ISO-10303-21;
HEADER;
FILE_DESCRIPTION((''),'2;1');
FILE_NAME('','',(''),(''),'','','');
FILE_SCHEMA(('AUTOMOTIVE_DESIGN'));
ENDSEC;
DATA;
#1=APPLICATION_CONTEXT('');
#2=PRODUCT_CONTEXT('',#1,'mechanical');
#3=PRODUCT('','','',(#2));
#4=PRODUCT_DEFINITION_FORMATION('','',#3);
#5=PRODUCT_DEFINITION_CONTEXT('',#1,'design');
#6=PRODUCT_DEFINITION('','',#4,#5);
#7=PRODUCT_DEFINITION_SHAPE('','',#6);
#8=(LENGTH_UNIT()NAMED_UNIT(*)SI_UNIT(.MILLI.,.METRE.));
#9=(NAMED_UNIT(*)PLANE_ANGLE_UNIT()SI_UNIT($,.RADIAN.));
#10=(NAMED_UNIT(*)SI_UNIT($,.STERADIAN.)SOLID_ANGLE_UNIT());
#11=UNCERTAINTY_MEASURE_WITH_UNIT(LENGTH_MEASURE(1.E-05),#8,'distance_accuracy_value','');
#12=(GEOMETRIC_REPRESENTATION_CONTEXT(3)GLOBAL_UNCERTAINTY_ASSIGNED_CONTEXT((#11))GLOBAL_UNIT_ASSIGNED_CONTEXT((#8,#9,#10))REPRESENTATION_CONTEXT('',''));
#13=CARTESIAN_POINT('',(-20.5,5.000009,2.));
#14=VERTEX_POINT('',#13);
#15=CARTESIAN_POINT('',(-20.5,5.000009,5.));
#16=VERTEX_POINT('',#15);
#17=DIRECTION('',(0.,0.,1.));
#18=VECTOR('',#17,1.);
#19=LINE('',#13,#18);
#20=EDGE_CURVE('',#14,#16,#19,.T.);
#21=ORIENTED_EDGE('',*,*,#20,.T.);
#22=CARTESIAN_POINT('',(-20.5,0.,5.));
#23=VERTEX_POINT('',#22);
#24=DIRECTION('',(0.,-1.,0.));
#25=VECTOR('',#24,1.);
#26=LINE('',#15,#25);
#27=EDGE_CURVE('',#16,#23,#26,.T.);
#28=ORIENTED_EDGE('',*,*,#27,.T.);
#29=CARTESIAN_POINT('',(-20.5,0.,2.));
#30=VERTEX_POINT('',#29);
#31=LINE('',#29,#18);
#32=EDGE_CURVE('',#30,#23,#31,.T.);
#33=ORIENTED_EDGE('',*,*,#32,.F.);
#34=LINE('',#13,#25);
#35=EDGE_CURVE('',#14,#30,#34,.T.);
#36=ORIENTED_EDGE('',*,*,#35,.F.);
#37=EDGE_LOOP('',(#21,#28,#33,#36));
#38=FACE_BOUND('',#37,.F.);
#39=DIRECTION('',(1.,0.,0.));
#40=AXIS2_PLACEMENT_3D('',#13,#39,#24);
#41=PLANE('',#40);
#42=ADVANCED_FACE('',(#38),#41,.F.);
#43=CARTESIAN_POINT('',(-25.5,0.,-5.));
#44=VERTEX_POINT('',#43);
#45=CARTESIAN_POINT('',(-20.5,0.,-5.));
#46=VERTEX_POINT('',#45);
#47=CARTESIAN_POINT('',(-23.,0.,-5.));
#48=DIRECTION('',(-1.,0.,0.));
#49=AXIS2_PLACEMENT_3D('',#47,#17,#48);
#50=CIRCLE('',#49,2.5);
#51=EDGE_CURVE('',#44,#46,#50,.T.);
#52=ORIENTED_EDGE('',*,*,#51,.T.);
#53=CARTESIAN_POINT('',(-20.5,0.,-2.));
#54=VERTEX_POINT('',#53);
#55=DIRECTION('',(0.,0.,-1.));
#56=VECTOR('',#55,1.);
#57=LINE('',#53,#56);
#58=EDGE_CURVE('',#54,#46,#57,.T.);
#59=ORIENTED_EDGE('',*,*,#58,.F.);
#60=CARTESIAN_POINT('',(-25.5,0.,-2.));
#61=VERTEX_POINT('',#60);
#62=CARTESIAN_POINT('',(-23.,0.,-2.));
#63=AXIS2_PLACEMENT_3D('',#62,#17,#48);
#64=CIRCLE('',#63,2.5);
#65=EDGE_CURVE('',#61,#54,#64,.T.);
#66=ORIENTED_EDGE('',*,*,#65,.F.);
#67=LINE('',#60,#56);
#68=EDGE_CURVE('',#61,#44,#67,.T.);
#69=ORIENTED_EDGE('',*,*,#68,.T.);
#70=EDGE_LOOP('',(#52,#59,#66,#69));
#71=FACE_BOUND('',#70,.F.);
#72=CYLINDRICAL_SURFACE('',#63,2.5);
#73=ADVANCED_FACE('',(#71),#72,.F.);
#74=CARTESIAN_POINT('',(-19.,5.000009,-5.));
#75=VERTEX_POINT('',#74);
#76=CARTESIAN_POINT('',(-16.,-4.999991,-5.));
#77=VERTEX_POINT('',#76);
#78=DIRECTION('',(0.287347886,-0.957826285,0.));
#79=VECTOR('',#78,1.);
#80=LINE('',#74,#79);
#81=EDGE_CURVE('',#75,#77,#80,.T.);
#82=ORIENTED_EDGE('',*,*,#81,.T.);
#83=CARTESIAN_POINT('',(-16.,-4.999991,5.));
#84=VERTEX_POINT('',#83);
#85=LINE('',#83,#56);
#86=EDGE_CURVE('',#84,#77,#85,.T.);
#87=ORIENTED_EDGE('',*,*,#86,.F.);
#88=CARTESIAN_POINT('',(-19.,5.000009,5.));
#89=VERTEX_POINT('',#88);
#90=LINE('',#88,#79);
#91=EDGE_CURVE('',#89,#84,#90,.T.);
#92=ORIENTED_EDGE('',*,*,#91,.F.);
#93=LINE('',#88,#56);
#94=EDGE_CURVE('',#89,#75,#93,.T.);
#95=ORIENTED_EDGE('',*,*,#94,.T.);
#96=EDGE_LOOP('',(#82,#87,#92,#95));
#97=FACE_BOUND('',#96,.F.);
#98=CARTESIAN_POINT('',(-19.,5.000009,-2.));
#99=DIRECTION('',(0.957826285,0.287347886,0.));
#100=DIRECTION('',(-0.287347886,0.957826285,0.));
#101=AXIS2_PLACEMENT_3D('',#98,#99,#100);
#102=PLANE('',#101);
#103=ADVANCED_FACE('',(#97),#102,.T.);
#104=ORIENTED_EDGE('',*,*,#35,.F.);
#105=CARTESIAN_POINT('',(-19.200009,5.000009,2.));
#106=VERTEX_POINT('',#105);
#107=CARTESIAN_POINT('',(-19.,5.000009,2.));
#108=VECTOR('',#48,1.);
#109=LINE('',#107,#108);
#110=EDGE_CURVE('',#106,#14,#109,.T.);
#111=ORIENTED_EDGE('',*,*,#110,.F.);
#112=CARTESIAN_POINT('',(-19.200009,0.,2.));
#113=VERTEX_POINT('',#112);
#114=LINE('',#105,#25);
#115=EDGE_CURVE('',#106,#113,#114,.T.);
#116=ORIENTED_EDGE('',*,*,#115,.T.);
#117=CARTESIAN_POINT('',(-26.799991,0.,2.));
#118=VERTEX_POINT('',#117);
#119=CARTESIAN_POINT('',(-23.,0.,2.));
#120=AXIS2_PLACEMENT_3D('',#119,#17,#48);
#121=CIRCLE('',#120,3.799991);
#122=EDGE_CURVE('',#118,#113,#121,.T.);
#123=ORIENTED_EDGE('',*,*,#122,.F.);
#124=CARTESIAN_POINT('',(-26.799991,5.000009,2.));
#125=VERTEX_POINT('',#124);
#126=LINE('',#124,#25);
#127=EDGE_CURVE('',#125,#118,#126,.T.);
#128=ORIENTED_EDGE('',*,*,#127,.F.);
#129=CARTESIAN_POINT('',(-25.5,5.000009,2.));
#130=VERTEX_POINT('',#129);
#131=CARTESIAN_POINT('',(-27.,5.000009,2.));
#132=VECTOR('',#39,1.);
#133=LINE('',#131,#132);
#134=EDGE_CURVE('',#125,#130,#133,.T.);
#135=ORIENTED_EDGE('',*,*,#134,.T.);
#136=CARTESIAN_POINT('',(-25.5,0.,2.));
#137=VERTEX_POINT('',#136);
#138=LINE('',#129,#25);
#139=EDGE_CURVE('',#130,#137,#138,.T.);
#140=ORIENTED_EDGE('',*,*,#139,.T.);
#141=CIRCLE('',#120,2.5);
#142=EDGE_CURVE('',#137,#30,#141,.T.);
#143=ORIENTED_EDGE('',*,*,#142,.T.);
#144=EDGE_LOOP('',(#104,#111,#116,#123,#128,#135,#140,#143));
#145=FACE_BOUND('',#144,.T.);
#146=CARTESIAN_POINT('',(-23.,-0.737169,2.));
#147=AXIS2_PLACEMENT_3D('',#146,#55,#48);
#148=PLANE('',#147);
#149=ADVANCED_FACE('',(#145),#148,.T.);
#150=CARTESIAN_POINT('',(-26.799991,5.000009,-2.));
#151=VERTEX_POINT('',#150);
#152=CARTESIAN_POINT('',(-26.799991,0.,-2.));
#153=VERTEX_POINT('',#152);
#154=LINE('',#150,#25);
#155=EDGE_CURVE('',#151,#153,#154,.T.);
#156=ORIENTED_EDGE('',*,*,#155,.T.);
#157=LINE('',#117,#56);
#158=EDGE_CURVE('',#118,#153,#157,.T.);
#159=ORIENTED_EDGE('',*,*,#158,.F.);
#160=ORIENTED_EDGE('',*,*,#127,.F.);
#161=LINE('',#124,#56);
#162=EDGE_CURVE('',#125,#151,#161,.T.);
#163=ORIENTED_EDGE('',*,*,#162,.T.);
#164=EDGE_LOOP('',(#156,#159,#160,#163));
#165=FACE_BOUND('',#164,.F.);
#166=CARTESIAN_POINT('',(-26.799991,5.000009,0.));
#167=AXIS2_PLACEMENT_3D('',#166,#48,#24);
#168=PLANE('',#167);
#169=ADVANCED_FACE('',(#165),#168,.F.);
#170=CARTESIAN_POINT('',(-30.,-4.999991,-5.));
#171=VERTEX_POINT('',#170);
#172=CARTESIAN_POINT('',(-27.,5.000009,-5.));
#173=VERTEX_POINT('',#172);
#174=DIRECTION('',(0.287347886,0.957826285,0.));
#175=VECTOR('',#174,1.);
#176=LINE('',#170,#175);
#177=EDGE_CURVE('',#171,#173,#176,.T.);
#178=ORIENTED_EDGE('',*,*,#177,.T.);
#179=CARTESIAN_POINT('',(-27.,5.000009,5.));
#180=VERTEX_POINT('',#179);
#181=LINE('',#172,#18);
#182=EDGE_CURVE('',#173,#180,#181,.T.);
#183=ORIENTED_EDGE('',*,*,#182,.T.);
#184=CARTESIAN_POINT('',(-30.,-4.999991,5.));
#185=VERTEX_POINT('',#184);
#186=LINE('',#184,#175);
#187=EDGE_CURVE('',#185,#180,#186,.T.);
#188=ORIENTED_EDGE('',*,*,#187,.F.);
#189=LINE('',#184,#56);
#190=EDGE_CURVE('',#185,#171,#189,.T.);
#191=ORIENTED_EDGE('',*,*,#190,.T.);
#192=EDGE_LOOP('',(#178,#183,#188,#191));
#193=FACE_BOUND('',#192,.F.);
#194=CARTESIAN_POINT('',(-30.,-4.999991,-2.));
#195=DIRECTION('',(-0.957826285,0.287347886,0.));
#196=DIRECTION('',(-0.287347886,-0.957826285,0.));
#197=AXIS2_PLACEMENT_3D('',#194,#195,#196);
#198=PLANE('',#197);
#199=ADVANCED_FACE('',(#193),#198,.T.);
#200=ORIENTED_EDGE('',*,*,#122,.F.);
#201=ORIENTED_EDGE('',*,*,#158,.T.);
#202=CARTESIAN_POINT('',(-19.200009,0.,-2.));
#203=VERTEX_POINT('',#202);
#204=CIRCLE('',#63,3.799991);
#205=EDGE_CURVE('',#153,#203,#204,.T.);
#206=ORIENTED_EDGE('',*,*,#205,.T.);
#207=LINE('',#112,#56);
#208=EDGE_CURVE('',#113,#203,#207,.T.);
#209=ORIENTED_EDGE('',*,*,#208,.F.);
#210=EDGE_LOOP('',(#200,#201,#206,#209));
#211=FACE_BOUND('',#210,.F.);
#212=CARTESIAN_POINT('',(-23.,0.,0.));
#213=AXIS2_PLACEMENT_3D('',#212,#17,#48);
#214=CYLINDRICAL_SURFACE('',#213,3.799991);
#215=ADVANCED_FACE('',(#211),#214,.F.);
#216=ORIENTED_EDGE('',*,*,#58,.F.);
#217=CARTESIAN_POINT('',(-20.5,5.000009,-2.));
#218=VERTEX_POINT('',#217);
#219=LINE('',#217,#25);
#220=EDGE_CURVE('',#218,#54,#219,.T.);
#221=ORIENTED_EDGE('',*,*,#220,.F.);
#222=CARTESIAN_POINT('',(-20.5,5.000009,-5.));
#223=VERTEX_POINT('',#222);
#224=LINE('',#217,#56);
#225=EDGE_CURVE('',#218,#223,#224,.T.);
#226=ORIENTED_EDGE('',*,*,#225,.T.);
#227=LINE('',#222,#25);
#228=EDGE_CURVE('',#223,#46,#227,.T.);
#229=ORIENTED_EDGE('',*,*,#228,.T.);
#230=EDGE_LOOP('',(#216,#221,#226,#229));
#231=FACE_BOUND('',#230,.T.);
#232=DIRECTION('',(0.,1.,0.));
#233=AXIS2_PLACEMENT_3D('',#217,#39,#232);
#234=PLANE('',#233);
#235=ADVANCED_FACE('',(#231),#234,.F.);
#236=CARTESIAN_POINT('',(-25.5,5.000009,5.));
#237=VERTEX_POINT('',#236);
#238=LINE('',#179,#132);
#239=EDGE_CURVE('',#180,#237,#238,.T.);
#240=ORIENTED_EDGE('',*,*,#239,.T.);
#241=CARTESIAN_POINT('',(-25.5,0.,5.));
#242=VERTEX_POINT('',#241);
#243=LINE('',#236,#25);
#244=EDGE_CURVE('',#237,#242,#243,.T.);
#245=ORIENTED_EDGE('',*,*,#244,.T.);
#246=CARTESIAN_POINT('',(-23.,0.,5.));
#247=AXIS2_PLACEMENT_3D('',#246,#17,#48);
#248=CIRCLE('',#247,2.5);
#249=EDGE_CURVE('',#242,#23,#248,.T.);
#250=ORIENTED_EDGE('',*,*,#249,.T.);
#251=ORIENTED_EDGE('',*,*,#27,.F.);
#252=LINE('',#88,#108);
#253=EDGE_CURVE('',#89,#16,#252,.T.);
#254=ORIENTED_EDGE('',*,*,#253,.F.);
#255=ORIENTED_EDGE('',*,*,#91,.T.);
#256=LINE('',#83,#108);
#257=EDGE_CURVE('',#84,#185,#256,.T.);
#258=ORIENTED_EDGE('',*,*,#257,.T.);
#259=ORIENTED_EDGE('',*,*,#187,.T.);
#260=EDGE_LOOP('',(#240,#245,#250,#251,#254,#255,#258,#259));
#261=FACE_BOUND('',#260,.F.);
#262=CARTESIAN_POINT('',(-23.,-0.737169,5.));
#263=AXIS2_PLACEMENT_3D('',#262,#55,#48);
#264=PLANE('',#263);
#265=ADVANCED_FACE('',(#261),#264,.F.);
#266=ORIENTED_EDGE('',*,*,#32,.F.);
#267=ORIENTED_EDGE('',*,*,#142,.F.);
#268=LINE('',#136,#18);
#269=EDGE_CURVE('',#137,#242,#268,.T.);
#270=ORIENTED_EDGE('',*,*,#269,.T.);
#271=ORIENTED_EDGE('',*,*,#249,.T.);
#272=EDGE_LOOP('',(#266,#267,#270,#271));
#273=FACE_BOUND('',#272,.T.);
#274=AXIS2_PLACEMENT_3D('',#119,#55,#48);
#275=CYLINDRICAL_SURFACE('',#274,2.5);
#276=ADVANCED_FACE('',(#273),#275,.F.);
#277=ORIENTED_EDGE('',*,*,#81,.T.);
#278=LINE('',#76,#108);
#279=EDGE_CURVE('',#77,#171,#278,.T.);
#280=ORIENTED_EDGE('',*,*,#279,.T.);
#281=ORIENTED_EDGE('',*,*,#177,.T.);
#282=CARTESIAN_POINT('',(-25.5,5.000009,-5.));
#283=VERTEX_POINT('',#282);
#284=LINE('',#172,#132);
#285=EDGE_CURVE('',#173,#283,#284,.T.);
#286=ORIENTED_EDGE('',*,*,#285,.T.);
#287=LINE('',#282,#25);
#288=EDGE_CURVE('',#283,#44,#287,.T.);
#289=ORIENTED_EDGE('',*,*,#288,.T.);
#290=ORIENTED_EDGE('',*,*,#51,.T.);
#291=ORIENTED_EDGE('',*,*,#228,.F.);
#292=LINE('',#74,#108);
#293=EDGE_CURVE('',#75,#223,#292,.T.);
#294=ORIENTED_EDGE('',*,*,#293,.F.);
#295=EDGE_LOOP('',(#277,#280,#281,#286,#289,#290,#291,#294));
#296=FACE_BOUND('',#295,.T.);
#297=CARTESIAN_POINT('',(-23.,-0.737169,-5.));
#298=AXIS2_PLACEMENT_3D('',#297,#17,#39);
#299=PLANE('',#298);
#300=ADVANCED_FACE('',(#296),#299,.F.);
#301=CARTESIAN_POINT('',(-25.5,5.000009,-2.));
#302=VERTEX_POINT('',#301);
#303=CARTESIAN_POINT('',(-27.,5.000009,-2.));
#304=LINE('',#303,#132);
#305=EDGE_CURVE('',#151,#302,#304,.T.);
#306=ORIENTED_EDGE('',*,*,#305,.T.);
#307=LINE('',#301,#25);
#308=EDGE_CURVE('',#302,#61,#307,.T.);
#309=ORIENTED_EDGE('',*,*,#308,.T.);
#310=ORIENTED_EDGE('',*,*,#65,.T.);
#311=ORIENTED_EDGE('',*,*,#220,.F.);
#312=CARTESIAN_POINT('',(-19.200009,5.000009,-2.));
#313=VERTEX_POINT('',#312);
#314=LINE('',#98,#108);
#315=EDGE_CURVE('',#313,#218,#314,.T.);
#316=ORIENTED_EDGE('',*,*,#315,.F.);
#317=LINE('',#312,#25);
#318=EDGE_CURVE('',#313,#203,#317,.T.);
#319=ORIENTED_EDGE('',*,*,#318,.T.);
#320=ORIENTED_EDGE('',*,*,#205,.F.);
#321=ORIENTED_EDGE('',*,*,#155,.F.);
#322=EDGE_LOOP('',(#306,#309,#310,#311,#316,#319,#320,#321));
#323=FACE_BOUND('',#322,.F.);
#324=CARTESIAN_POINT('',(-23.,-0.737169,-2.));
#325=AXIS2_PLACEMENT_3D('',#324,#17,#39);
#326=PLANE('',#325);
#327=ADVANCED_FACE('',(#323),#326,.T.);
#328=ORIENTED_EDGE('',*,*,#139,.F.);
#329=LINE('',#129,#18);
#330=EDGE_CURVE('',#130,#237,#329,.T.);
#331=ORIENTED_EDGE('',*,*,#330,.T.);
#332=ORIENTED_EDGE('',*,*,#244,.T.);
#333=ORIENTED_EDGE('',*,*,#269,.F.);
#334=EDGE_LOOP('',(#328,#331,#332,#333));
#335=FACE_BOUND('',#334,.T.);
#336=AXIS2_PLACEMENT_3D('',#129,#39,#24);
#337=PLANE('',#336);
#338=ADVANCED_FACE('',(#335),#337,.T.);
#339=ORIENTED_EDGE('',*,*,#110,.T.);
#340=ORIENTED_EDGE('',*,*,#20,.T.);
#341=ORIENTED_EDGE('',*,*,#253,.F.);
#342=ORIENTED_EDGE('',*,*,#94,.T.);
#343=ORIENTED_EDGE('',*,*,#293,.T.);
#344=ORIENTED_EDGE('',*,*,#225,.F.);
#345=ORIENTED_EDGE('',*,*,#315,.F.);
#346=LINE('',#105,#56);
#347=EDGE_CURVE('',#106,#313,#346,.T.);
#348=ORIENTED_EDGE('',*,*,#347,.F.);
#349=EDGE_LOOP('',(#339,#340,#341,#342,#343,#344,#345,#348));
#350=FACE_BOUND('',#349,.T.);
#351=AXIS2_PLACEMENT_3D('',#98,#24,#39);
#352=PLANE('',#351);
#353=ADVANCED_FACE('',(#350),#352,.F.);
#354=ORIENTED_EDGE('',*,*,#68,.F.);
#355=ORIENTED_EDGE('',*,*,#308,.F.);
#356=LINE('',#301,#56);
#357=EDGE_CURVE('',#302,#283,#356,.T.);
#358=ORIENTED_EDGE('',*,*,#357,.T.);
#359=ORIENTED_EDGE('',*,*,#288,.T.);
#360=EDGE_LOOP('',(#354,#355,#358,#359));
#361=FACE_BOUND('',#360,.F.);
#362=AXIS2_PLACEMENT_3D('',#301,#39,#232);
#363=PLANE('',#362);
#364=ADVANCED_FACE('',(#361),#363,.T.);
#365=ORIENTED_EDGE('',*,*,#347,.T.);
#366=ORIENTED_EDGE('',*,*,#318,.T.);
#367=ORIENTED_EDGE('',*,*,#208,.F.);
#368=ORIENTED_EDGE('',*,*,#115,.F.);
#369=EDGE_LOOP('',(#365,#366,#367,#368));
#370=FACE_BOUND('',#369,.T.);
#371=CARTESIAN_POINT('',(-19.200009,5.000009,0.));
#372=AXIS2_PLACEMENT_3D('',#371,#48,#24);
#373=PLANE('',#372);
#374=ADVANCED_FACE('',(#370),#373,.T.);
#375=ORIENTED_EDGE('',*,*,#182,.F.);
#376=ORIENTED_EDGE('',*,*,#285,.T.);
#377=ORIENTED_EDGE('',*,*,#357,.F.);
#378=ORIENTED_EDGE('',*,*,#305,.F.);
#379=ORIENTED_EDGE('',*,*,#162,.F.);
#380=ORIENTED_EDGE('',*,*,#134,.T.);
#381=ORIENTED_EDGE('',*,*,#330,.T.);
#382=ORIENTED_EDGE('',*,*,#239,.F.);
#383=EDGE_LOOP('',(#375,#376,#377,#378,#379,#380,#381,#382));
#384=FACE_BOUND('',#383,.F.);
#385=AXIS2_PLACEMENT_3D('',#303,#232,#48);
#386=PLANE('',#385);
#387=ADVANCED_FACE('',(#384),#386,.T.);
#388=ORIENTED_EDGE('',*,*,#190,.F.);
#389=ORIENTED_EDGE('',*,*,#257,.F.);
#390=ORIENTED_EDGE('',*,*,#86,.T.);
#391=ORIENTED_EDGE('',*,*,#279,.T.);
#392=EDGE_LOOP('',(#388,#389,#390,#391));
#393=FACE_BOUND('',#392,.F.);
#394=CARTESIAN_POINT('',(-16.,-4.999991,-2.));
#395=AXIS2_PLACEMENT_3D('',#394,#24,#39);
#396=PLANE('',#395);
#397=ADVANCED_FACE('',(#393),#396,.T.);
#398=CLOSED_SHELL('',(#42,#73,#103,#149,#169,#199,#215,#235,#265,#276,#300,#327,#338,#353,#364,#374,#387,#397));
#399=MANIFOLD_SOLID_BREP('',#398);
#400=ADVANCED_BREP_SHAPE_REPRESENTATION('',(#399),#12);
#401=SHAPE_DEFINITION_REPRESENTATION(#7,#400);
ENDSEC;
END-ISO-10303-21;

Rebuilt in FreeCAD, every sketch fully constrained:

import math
import FreeCAD as App
import Part
import Sketcher

V = App.Vector

doc = App.newDocument("Part")
params = doc.addObject("Spreadsheet::Sheet", "Params")
for row, (alias, value) in enumerate([
    ("sketch1_width", "14 mm"),
    ("pad1_length", "4 mm"),
    ("sketch2_radius", "2.5 mm"),
    ("sketch2_width", "14 mm"),
    ("sketch2_width2", "1.5 mm"),
    ("pad2_length", "3 mm"),
], start=1):
    params.set(f"A{row}", alias)
    params.set(f"B{row}", "=" + value)
    params.setAlias(f"B{row}", alias)

body = doc.addObject("PartDesign::Body", "Body")

# Sketch on XY plane
sketch1 = body.newObject("Sketcher::SketchObject", "Sketch")
sketch1.AttachmentSupport = (doc.getObject("XY_Plane"), [""])
sketch1.MapMode = "FlatFace"
sketch1.addGeometry([
    Part.LineSegment(V(-4, 5, 0), V(-7, -5, 0)),  # 0
    Part.LineSegment(V(-7, -5, 0), V(7, -5, 0)),  # 1
    Part.LineSegment(V(7, -5, 0), V(4, 5, 0)),  # 2
    Part.LineSegment(V(4, 5, 0), V(3.8, 5, 0)),  # 3
    Part.LineSegment(V(3.8, 5, 0), V(3.8, 0, 0)),  # 4
    Part.ArcOfCircle(Part.Circle(V(0, 0, 0), V(0, 0, 1), 3.8), math.radians(180), math.radians(360)),  # 5
    Part.LineSegment(V(-3.8, 0, 0), V(-3.8, 5, 0)),  # 6
    Part.LineSegment(V(-3.8, 5, 0), V(-4, 5, 0)),  # 7
], False)
sketch1.addConstraint([
    Sketcher.Constraint("Coincident", 0, 2, 1, 1),
    Sketcher.Constraint("Coincident", 1, 2, 2, 1),
    Sketcher.Constraint("Coincident", 2, 2, 3, 1),
    Sketcher.Constraint("Coincident", 3, 2, 4, 1),
    Sketcher.Constraint("Tangent", 4, 2, 5, 2),
    Sketcher.Constraint("Tangent", 5, 1, 6, 1),
    Sketcher.Constraint("Coincident", 6, 2, 7, 1),
    Sketcher.Constraint("Coincident", 7, 2, 0, 1),
    Sketcher.Constraint("Horizontal", 1),
    Sketcher.Constraint("Horizontal", 3),
    Sketcher.Constraint("Vertical", 4),
    Sketcher.Constraint("Vertical", 6),
    Sketcher.Constraint("Horizontal", 7),
    Sketcher.Constraint("Coincident", 5, 3, -1, 1),
    Sketcher.Constraint("Symmetric", 2, 2, 7, 2, -2),
    Sketcher.Constraint("Equal", 0, 2),
    Sketcher.Constraint("DistanceX", 1, 1, 1, 2, 14.0),
    Sketcher.Constraint("DistanceX", -1, 1, 2, 2, 4.0),
    Sketcher.Constraint("DistanceY", 1, 2, 2, 2, 10.0),
    Sketcher.Constraint("Radius", 5, 3.799991),
    Sketcher.Constraint("DistanceY", 4, 2, 4, 1, 5.000009),
])
sketch1.setExpression("Constraints[16]", "Params.sketch1_width")
pad1 = body.newObject("PartDesign::Pad", "Pad")
pad1.Profile = sketch1
pad1.setExpression("Length", "Params.pad1_length")
pad1.Midplane = True

# Sketch on XY plane
sketch2 = body.newObject("Sketcher::SketchObject", "Sketch001")
sketch2.AttachmentSupport = (doc.getObject("XY_Plane"), [""])
sketch2.MapMode = "FlatFace"
sketch2.AttachmentOffset = App.Placement(V(0, 0, 2), App.Rotation())
sketch2.addGeometry([
    Part.ArcOfCircle(Part.Circle(V(0, 0, 0), V(0, 0, 1), 2.5), math.radians(180), math.radians(360)),  # 0
    Part.LineSegment(V(-2.5, 0, 0), V(-2.5, 5, 0)),  # 1
    Part.LineSegment(V(-2.5, 5, 0), V(-4, 5, 0)),  # 2
    Part.LineSegment(V(-4, 5, 0), V(-7, -5, 0)),  # 3
    Part.LineSegment(V(-7, -5, 0), V(7, -5, 0)),  # 4
    Part.LineSegment(V(7, -5, 0), V(4, 5, 0)),  # 5
    Part.LineSegment(V(4, 5, 0), V(2.5, 5, 0)),  # 6
    Part.LineSegment(V(2.5, 5, 0), V(2.5, 0, 0)),  # 7
], False)
sketch2.addConstraint([
    Sketcher.Constraint("Tangent", 0, 1, 1, 1),
    Sketcher.Constraint("Coincident", 1, 2, 2, 1),
    Sketcher.Constraint("Coincident", 2, 2, 3, 1),
    Sketcher.Constraint("Coincident", 3, 2, 4, 1),
    Sketcher.Constraint("Coincident", 4, 2, 5, 1),
    Sketcher.Constraint("Coincident", 5, 2, 6, 1),
    Sketcher.Constraint("Coincident", 6, 2, 7, 1),
    Sketcher.Constraint("Tangent", 7, 2, 0, 2),
    Sketcher.Constraint("Vertical", 1),
    Sketcher.Constraint("Horizontal", 2),
    Sketcher.Constraint("Horizontal", 4),
    Sketcher.Constraint("Horizontal", 6),
    Sketcher.Constraint("Vertical", 7),
    Sketcher.Constraint("Coincident", 0, 3, -1, 1),
    Sketcher.Constraint("Symmetric", 2, 2, 5, 2, -2),
    Sketcher.Constraint("Equal", 3, 5),
    Sketcher.Constraint("Radius", 0, 2.5),
    Sketcher.Constraint("DistanceX", 4, 1, 4, 2, 14.0),
    Sketcher.Constraint("DistanceX", 2, 2, 2, 1, 1.5),
    Sketcher.Constraint("DistanceY", 3, 2, 2, 2, 10.0),
    Sketcher.Constraint("DistanceY", 1, 1, 1, 2, 5.000009),
])
sketch2.setExpression("Constraints[16]", "Params.sketch2_radius")
sketch2.setExpression("Constraints[17]", "Params.sketch2_width")
sketch2.setExpression("Constraints[18]", "Params.sketch2_width2")
pad2 = body.newObject("PartDesign::Pad", "Pad001")
pad2.Profile = sketch2
pad2.setExpression("Length", "Params.pad2_length")
doc.recompute()

mirrored = body.newObject("PartDesign::Mirrored", "Mirrored")
mirrored.Originals = [pad2]
mirrored.MirrorPlane = (doc.getObject("XY_Plane"), [""])
body.Tip = mirrored
body2 = doc.addObject("PartDesign::Body", "Body001")
doc.recompute()

body.Placement = App.Placement(V(-23, 0, 0), App.Rotation(V(0, 0, 1), 0))
boolean = body2.newObject("PartDesign::Boolean", "Boolean")
boolean.Type = "Fuse"
boolean.addObjects([body])

doc.recompute()
